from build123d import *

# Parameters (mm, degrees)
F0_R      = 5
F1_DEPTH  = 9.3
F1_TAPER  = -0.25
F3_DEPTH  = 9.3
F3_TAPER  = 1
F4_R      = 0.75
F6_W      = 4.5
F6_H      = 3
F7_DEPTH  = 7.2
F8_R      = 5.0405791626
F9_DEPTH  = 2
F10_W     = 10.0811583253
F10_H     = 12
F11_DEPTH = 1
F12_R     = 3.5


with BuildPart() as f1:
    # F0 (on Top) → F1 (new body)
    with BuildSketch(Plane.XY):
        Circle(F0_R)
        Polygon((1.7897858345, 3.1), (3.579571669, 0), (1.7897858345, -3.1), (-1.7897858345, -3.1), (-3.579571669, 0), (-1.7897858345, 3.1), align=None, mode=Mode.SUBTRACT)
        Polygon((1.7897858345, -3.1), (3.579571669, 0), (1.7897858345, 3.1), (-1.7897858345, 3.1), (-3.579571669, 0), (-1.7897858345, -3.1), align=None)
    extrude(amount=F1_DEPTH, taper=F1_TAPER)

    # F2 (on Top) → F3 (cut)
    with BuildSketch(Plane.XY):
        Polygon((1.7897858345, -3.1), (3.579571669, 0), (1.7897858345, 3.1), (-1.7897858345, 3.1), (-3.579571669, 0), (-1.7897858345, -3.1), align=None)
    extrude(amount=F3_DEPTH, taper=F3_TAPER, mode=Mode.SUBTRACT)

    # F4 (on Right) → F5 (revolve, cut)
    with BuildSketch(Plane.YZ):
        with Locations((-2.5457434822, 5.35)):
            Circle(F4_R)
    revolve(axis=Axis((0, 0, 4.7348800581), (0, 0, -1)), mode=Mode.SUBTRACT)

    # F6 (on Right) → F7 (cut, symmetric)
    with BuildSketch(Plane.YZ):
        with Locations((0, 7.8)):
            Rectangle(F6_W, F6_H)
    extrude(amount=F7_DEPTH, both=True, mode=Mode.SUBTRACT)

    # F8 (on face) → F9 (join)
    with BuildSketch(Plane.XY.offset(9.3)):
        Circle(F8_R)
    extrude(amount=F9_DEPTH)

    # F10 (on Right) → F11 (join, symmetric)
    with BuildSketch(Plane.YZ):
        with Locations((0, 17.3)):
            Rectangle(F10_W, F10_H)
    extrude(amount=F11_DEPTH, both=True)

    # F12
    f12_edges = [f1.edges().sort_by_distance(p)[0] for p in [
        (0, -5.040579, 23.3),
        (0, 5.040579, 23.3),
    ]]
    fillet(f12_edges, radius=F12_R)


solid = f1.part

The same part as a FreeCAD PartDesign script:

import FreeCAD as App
import Part
import Sketcher
from FreeCAD import Vector
Q = App.Units.Quantity


def edges_at(feature, points):
    """Names of the edges that pass closest to the given points."""
    edges = feature.Shape.Edges
    near = lambda p: min(range(len(edges)), key=lambda i: edges[i].distToShape(Part.Vertex(*p))[0])
    return sorted({f"Edge{near(p) + 1}" for p in points})


def add_polygon(sketch, points):
    """Adds a closed chain of lines whose ends are joined by coincident constraints."""
    first, n = sketch.GeometryCount, len(points)
    for a, b in zip(points, points[1:] + points[:1]):
        sketch.addGeometry(Part.LineSegment(App.Vector(*a, 0), App.Vector(*b, 0)), False)
    for i in range(n):
        sketch.addConstraint(Sketcher.Constraint("Coincident", first + i, 2, first + (i + 1) % n, 1))

doc = App.newDocument("Part")
body = doc.addObject("PartDesign::Body", "Body")

sketch1 = body.newObject("Sketcher::SketchObject", "Sketch")
sketch1.AttachmentSupport = (doc.getObject("XY_Plane"), [""])
sketch1.MapMode = "FlatFace"
sketch1.addGeometry(Part.Circle(Vector(0, 0, 0), Vector(0, 0, 1), 5), False)
sketch1.addConstraint([
    Sketcher.Constraint("Coincident", 0, 3, -1, 1),
    Sketcher.Constraint("Diameter", 0, Q("10 mm")),
])
pad1 = body.newObject("PartDesign::Pad", "Pad")
pad1.Profile = sketch1
pad1.Length = 9.3
pad1.TaperAngle = 0.25

sketch2 = body.newObject("Sketcher::SketchObject", "Sketch001")
sketch2.AttachmentSupport = (doc.getObject("XY_Plane"), [""])
sketch2.MapMode = "FlatFace"
add_polygon(sketch2, [(1.789786, -3.1), (3.579572, 0), (1.789786, 3.1), (-1.789786, 3.1), (-3.579572, 0), (-1.789786, -3.1)])
sketch2.addConstraint([
    Sketcher.Constraint("Horizontal", 2),
    Sketcher.Constraint("Horizontal", 5),
    Sketcher.Constraint("Symmetric", 0, 2, 3, 2, -1, 1),
    Sketcher.Constraint("Symmetric", 1, 2, 4, 2, -1, 1),
    Sketcher.Constraint("PointOnObject", 0, 2, -1),
    Sketcher.Constraint("Parallel", 0, 3),
    Sketcher.Constraint("Vertical", 2, 2, 4, 2),
    Sketcher.Constraint("Angle", 0, Q("60 deg")),
    Sketcher.Constraint("DistanceY", -1, 1, 1, 2, Q("3.1 mm")),
    Sketcher.Constraint("DistanceX", 2, 2, 2, 1, Q("3.579572 mm")),
])
pocket1 = body.newObject("PartDesign::Pocket", "Pocket")
pocket1.Profile = sketch2
pocket1.Length = 9.3
pocket1.Reversed = True
pocket1.TaperAngle = -1

sketch3 = body.newObject("Sketcher::SketchObject", "Sketch002")
sketch3.AttachmentSupport = (doc.getObject("YZ_Plane"), [""])
sketch3.MapMode = "FlatFace"
sketch3.addGeometry(Part.Circle(Vector(-2.545743, 5.35, 0), Vector(0, 0, 1), 0.75), False)
sketch3.addConstraint([
    Sketcher.Constraint("Diameter", 0, Q("1.5 mm")),
    Sketcher.Constraint("DistanceY", -1, 1, 0, 3, Q("5.35 mm")),
    Sketcher.Constraint("DistanceX", 0, 3, -1, 1, Q("2.545743 mm")),
])
groove = body.newObject("PartDesign::Groove", "Groove")
groove.Profile = sketch3
groove.ReferenceAxis = (sketch3, ["V_Axis"])
groove.Angle = 360

sketch4 = body.newObject("Sketcher::SketchObject", "Sketch003")
sketch4.AttachmentSupport = (doc.getObject("YZ_Plane"), [""])
sketch4.MapMode = "FlatFace"
add_polygon(sketch4, [(-2.25, 9.3), (-2.25, 6.3), (2.25, 6.3), (2.25, 9.3)])
sketch4.addConstraint([
    Sketcher.Constraint("Vertical", 0),
    Sketcher.Constraint("Horizontal", 1),
    Sketcher.Constraint("Vertical", 2),
    Sketcher.Constraint("Horizontal", 3),
    Sketcher.Constraint("DistanceY", 0, 2, 0, 1, Q("3 mm")),
    Sketcher.Constraint("DistanceX", 1, 1, 1, 2, Q("4.5 mm")),
    Sketcher.Constraint("DistanceY", -1, 1, 0, 2, Q("6.3 mm")),
    Sketcher.Constraint("DistanceX", 0, 2, -1, 1, Q("2.25 mm")),
])
pocket2 = body.newObject("PartDesign::Pocket", "Pocket001")
pocket2.Profile = sketch4
pocket2.Length = 14.4
pocket2.Midplane = True

sketch5 = body.newObject("Sketcher::SketchObject", "Sketch004")
sketch5.AttachmentSupport = (doc.getObject("XY_Plane"), [""])
sketch5.MapMode = "FlatFace"
sketch5.AttachmentOffset = App.Placement(Vector(0, 0, 9.3), App.Rotation())
sketch5.addGeometry(Part.Circle(Vector(0, 0, 0), Vector(0, 0, 1), 5.040579), False)
sketch5.addConstraint([
    Sketcher.Constraint("Coincident", 0, 3, -1, 1),
    Sketcher.Constraint("Diameter", 0, Q("10.081158 mm")),
])
pad2 = body.newObject("PartDesign::Pad", "Pad001")
pad2.Profile = sketch5
pad2.Length = 2

sketch6 = body.newObject("Sketcher::SketchObject", "Sketch005")
sketch6.AttachmentSupport = (doc.getObject("YZ_Plane"), [""])
sketch6.MapMode = "FlatFace"
add_polygon(sketch6, [(-5.040579, 23.3), (-5.040579, 11.3), (5.040579, 11.3), (5.040579, 23.3)])
sketch6.addConstraint([
    Sketcher.Constraint("Vertical", 0),
    Sketcher.Constraint("Horizontal", 1),
    Sketcher.Constraint("Vertical", 2),
    Sketcher.Constraint("Horizontal", 3),
    Sketcher.Constraint("DistanceY", 0, 2, 0, 1, Q("12 mm")),
    Sketcher.Constraint("DistanceY", -1, 1, 0, 2, Q("11.3 mm")),
    Sketcher.Constraint("DistanceX", 1, 1, 1, 2, Q("10.081158 mm")),
    Sketcher.Constraint("DistanceX", 0, 2, -1, 1, Q("5.040579 mm")),
])
pad3 = body.newObject("PartDesign::Pad", "Pad002")
pad3.Profile = sketch6
pad3.Length = 2
pad3.Midplane = True
doc.recompute()

fillet = body.newObject("PartDesign::Fillet", "Fillet")
fillet.Base = (pad3, edges_at(pad3, [(0, -5.041, 23.3), (0, 5.041, 23.3)]))
fillet.Radius = 3.5

doc.recompute()
